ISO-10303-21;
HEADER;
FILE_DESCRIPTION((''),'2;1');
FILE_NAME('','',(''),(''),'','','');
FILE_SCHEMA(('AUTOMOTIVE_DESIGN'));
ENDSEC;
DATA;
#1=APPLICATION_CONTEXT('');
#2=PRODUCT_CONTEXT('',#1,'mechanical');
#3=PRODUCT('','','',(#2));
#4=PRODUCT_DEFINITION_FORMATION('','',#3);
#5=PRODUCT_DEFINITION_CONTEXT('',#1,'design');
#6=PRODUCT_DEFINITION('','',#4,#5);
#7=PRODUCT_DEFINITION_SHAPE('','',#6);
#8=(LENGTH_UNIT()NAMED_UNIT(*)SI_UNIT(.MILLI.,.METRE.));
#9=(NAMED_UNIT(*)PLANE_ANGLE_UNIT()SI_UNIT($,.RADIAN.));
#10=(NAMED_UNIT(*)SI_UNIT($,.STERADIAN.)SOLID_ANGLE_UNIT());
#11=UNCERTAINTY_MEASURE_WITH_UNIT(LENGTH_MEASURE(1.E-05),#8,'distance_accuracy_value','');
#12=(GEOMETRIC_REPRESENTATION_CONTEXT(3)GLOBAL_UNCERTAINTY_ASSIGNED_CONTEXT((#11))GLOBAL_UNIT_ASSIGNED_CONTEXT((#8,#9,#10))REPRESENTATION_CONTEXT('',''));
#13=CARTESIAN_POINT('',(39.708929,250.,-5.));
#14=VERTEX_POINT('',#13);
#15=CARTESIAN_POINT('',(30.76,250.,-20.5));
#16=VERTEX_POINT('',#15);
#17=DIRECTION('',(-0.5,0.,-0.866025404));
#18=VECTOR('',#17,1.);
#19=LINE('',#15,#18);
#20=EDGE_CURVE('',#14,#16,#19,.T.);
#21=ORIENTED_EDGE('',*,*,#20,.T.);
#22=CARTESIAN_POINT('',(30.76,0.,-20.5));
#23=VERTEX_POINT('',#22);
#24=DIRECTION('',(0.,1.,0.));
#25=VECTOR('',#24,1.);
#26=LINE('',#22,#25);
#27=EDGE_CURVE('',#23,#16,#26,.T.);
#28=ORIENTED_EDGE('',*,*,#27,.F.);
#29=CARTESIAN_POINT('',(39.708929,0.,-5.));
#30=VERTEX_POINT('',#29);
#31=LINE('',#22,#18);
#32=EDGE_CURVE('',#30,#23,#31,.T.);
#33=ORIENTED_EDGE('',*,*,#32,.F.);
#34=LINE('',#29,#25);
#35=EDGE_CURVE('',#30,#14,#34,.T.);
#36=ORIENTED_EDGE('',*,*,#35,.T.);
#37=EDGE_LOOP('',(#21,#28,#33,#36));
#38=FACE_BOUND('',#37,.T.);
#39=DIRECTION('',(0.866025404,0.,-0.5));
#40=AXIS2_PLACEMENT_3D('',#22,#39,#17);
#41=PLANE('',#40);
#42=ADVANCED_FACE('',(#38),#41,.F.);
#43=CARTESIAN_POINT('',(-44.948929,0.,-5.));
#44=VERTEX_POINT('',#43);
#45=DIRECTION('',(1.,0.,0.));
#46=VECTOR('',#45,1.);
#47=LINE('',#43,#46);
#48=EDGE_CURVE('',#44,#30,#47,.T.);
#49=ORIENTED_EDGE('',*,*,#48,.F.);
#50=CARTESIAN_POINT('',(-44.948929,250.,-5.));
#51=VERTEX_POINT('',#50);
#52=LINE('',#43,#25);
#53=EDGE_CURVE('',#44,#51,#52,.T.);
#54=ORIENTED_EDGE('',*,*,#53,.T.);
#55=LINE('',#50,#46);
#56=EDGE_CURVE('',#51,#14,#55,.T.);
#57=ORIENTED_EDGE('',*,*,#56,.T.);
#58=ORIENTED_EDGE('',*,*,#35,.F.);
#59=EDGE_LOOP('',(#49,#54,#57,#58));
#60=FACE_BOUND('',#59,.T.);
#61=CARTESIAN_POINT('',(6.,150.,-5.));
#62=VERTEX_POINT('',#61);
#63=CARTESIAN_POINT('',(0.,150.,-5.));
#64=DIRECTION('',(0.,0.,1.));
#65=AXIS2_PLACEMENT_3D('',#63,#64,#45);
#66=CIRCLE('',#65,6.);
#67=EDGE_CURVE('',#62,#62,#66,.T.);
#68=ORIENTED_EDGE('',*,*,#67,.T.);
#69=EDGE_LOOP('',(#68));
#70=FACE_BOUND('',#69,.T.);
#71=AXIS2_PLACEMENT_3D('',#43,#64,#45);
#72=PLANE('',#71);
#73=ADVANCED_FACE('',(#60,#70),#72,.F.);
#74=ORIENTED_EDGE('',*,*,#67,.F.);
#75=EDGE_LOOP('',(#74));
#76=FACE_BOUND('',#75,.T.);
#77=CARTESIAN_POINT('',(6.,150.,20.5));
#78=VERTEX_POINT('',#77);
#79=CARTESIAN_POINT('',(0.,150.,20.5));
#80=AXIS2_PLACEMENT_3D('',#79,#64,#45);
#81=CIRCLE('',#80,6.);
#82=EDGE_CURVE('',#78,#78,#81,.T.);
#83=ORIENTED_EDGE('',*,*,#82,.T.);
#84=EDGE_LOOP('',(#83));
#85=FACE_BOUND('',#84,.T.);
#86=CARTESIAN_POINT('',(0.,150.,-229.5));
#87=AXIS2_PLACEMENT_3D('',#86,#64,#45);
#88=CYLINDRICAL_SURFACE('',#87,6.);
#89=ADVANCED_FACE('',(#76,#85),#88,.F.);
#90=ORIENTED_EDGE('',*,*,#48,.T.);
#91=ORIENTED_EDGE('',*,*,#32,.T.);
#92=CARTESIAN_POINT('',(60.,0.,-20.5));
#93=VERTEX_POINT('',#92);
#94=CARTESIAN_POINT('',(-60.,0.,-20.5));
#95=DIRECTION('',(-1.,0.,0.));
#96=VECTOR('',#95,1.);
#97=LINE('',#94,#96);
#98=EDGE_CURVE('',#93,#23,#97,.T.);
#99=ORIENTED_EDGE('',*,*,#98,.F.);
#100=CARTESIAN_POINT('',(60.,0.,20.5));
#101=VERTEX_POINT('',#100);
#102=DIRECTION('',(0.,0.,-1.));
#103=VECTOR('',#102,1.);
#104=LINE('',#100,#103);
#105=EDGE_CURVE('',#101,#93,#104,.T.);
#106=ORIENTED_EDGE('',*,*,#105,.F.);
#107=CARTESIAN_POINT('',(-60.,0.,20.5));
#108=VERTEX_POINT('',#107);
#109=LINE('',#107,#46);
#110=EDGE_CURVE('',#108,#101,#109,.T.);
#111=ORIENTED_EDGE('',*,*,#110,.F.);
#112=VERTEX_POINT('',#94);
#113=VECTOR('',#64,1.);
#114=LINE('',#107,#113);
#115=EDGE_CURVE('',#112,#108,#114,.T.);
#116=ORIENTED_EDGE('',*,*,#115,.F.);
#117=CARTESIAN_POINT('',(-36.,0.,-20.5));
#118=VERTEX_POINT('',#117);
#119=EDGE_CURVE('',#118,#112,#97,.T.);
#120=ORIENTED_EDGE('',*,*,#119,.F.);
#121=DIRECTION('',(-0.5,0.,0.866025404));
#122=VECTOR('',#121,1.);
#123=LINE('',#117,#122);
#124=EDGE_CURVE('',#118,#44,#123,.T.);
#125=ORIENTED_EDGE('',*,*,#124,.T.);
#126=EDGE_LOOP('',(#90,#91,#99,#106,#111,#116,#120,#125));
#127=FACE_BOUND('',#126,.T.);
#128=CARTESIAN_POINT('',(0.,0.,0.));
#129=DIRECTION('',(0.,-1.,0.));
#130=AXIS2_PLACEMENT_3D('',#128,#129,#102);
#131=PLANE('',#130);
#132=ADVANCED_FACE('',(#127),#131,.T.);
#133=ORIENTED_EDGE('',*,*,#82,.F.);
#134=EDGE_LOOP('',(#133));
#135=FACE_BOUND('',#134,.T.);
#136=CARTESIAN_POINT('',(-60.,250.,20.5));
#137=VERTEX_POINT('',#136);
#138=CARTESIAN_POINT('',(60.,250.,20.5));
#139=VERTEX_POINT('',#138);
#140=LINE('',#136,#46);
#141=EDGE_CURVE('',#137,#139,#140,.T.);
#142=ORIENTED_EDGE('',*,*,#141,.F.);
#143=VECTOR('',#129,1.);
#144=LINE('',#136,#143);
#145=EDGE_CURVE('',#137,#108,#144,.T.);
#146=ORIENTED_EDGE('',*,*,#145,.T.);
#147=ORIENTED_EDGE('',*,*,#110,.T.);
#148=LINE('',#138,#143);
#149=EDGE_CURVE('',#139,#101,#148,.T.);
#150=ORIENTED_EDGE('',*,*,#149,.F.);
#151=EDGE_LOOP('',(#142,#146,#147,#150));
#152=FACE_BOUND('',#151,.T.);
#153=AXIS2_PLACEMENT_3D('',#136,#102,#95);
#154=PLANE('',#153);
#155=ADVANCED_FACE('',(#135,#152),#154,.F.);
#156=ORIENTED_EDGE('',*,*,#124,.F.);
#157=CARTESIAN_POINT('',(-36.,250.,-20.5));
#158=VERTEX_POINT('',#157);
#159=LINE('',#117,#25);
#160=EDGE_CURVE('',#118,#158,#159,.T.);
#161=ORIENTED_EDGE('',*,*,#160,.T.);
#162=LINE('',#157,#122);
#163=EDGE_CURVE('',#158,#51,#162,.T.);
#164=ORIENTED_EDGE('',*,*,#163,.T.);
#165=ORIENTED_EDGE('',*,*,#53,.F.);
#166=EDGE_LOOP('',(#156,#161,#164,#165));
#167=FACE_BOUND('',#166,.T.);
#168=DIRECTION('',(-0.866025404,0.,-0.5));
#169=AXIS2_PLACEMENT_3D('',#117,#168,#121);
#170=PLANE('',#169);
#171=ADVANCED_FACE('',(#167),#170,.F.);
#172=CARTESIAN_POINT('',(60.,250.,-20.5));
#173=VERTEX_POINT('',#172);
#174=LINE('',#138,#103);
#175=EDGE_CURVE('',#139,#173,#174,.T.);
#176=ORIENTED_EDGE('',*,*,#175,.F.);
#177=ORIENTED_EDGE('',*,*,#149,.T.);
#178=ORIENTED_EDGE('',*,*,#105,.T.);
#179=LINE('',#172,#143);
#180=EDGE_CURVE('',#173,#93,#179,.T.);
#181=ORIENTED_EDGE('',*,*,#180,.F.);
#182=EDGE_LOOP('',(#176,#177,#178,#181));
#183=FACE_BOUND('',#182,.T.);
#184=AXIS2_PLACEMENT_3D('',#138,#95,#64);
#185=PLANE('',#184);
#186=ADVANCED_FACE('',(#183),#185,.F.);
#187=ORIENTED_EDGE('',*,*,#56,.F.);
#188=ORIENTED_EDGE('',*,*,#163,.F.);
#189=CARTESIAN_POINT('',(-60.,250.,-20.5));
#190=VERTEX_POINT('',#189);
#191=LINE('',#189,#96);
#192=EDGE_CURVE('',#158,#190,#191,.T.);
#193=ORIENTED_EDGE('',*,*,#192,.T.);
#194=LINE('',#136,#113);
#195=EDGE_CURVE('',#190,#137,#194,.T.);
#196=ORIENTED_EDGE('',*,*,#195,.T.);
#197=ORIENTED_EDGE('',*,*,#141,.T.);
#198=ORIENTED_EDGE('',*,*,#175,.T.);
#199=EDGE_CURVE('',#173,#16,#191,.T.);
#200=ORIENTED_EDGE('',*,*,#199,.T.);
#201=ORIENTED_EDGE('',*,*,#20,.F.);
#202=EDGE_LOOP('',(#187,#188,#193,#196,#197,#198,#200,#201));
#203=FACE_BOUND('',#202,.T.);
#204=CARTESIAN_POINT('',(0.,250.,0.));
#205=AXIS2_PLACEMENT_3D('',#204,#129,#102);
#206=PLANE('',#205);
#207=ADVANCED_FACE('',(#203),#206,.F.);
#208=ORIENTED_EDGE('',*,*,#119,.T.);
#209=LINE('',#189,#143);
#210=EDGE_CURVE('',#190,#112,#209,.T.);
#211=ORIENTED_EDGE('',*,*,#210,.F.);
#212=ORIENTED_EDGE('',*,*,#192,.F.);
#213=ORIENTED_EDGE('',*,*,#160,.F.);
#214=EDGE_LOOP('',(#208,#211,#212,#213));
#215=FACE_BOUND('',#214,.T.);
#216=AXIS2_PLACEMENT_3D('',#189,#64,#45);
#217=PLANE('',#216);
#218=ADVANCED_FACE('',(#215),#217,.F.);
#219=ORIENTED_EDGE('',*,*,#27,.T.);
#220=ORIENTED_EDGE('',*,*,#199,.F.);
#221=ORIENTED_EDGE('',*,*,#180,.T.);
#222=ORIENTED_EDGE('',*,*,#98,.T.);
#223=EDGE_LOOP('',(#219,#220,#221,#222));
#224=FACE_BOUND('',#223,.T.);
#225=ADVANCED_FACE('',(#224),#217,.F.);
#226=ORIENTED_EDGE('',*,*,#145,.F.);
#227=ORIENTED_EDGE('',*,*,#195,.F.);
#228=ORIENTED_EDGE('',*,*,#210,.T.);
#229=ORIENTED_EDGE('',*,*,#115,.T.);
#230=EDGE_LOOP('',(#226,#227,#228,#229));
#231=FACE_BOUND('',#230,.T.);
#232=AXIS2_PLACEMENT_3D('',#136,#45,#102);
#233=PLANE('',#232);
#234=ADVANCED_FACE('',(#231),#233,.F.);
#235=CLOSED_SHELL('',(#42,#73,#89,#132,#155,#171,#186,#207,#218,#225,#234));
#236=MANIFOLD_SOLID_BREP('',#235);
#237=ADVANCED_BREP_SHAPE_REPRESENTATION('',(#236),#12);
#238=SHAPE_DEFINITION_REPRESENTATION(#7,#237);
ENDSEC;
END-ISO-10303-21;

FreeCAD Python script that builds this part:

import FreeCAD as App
import Part
import Sketcher
Q = App.Units.Quantity


def add_polygon(sketch, points):
    """Adds a closed chain of lines whose ends are joined by coincident constraints."""
    first, n = sketch.GeometryCount, len(points)
    for a, b in zip(points, points[1:] + points[:1]):
        sketch.addGeometry(Part.LineSegment(App.Vector(*a, 0), App.Vector(*b, 0)), False)
    for i in range(n):
        sketch.addConstraint(Sketcher.Constraint("Coincident", first + i, 2, first + (i + 1) % n, 1))

doc = App.newDocument("Part")
body = doc.addObject("PartDesign::Body", "Body")

# Sketch on XZ plane
sketch1 = body.newObject("Sketcher::SketchObject", "Sketch")
sketch1.AttachmentSupport = (doc.getObject("XZ_Plane"), [""])
sketch1.MapMode = "FlatFace"
add_polygon(sketch1, [(-60, -20), (-60, 20), (60, 20), (60, -20)])  # lines 0-3
sketch1.addConstraint([
    Sketcher.Constraint("Vertical", 0),
    Sketcher.Constraint("Horizontal", 1),
    Sketcher.Constraint("Vertical", 2),
    Sketcher.Constraint("Horizontal", 3),
    Sketcher.Constraint("Symmetric", 0, 2, 2, 2, -1, 1),
    Sketcher.Constraint("DistanceX", 1, 1, 1, 2, 120.0),
    Sketcher.Constraint("DistanceY", 0, 1, 0, 2, 41.0),
])
pad1 = body.newObject("PartDesign::Pad", "Pad")
pad1.Profile = sketch1
pad1.Length = 250
pad1.Reversed = True

# Sketch on XZ plane
sketch2 = body.newObject("Sketcher::SketchObject", "Sketch001")
sketch2.AttachmentSupport = (doc.getObject("XZ_Plane"), [""])
sketch2.MapMode = "FlatFace"
sketch2.AttachmentOffset = App.Placement(App.Vector(0, 0, -250), App.Rotation())
add_polygon(sketch2, [(-36, -20), (-45, -5), (40, -5), (31, -20)])  # lines 0-3
sketch2.addConstraint([
    Sketcher.Constraint("Horizontal", 1),
    Sketcher.Constraint("Horizontal", 3),
    Sketcher.Constraint("Equal", 0, 2),
    Sketcher.Constraint("Angle", 0, Q("120 deg")),
    Sketcher.Constraint("DistanceY", 0, 2, -1, 1, 5.0),
    Sketcher.Constraint("DistanceX", 3, 2, -1, 1, 36.0),
    Sketcher.Constraint("DistanceX", 3, 2, 3, 1, 66.76),
    Sketcher.Constraint("DistanceY", 2, 2, -1, 1, 20.5),
])
pocket1 = body.newObject("PartDesign::Pocket", "Pocket")
pocket1.Profile = sketch2
pocket1.Length = 250
pocket1.Reversed = True

# Sketch on XY plane
sketch3 = body.newObject("Sketcher::SketchObject", "Sketch002")
sketch3.AttachmentSupport = (doc.getObject("XY_Plane"), [""])
sketch3.MapMode = "FlatFace"
sketch3.AttachmentOffset = App.Placement(App.Vector(0, 0, 20.5), App.Rotation())
sketch3.addGeometry(Part.Circle(App.Vector(0, 150, 0), App.Vector(0, 0, 1), 6), False)
sketch3.addConstraint([
    Sketcher.Constraint("PointOnObject", 0, 3, -2),
    Sketcher.Constraint("Diameter", 0, 12.0),
    Sketcher.Constraint("DistanceY", -1, 1, 0, 3, 150.0),
])
pocket2 = body.newObject("PartDesign::Pocket", "Pocket001")
pocket2.Profile = sketch3
pocket2.Length = 250

doc.recompute()
